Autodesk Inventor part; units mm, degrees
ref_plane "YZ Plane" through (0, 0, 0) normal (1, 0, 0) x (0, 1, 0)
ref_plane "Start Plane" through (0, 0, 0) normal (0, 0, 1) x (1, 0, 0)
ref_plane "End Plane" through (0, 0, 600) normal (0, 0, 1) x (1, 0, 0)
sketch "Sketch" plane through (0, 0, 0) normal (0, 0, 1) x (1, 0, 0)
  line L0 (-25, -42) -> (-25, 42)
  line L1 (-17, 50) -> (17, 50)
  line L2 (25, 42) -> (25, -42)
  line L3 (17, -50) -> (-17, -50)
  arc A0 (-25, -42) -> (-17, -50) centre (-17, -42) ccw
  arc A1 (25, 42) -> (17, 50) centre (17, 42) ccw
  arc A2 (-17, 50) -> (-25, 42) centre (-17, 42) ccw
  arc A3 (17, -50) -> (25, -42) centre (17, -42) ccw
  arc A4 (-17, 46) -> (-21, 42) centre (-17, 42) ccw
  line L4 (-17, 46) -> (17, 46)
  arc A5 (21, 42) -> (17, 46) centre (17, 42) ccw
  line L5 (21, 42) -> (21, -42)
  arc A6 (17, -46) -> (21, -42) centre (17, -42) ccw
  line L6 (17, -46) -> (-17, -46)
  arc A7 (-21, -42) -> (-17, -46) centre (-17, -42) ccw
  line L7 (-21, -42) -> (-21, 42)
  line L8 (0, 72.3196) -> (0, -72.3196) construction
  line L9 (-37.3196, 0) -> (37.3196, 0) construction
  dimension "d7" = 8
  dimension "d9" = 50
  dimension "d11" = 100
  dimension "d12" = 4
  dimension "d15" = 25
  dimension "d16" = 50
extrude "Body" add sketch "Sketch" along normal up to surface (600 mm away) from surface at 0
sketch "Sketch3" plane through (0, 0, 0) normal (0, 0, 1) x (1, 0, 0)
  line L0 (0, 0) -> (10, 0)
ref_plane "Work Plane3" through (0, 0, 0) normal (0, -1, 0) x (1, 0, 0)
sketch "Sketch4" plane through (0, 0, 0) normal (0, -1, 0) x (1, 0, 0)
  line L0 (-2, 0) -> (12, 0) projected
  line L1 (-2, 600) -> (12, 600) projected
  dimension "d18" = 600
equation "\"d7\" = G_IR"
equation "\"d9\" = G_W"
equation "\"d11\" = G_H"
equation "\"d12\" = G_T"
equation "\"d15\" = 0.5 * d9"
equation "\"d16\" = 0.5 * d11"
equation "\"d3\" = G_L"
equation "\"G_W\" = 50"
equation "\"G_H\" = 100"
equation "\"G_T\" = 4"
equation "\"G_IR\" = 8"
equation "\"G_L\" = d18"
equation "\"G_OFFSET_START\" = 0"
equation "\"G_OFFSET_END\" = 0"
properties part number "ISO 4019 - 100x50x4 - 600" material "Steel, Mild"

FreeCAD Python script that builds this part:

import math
import FreeCAD as App
import Part
import Sketcher

doc = App.newDocument("Part")
params = doc.addObject("Spreadsheet::Sheet", "Params")
for row, (alias, value) in enumerate([
    ("sketch1_radius", "8 mm"),
    ("sketch1_radius2", "4 mm"),
    ("pad1_length", "600 mm"),
], start=1):
    params.set(f"A{row}", alias)
    params.set(f"B{row}", "=" + value)
    params.setAlias(f"B{row}", alias)

body = doc.addObject("PartDesign::Body", "Body")

sketch1 = body.newObject("Sketcher::SketchObject", "Sketch")
sketch1.AttachmentSupport = (doc.getObject("XY_Plane"), [""])
sketch1.MapMode = "FlatFace"
sketch1.addGeometry([
    Part.LineSegment(App.Vector(-25, 42, 0), App.Vector(-25, -42, 0)),
    Part.ArcOfCircle(Part.Circle(App.Vector(-17, -42, 0), App.Vector(0, 0, 1), 8), math.radians(180), math.radians(270)),
    Part.LineSegment(App.Vector(-17, -50, 0), App.Vector(17, -50, 0)),
    Part.ArcOfCircle(Part.Circle(App.Vector(17, -42, 0), App.Vector(0, 0, 1), 8), math.radians(-90), math.radians(0)),
    Part.LineSegment(App.Vector(25, -42, 0), App.Vector(25, 42, 0)),
    Part.ArcOfCircle(Part.Circle(App.Vector(17, 42, 0), App.Vector(0, 0, 1), 8), math.radians(0), math.radians(90)),
    Part.LineSegment(App.Vector(17, 50, 0), App.Vector(-17, 50, 0)),
    Part.ArcOfCircle(Part.Circle(App.Vector(-17, 42, 0), App.Vector(0, 0, 1), 8), math.radians(90), math.radians(180)),
    Part.ArcOfCircle(Part.Circle(App.Vector(-17, 42, 0), App.Vector(0, 0, 1), 4), math.radians(90), math.radians(180)),
    Part.LineSegment(App.Vector(-17, 46, 0), App.Vector(17, 46, 0)),
    Part.ArcOfCircle(Part.Circle(App.Vector(17, 42, 0), App.Vector(0, 0, 1), 4), math.radians(0), math.radians(90)),
    Part.LineSegment(App.Vector(21, 42, 0), App.Vector(21, -42, 0)),
    Part.ArcOfCircle(Part.Circle(App.Vector(17, -42, 0), App.Vector(0, 0, 1), 4), math.radians(-90), math.radians(0)),
    Part.LineSegment(App.Vector(17, -46, 0), App.Vector(-17, -46, 0)),
    Part.ArcOfCircle(Part.Circle(App.Vector(-17, -42, 0), App.Vector(0, 0, 1), 4), math.radians(180), math.radians(270)),
    Part.LineSegment(App.Vector(-21, -42, 0), App.Vector(-21, 42, 0)),
], False)
sketch1.addConstraint([
    Sketcher.Constraint("Tangent", 0, 2, 1, 1),
    Sketcher.Constraint("Tangent", 1, 2, 2, 1),
    Sketcher.Constraint("Tangent", 2, 2, 3, 1),
    Sketcher.Constraint("Tangent", 3, 2, 4, 1),
    Sketcher.Constraint("Tangent", 4, 2, 5, 1),
    Sketcher.Constraint("Tangent", 5, 2, 6, 1),
    Sketcher.Constraint("Tangent", 6, 2, 7, 1),
    Sketcher.Constraint("Tangent", 7, 2, 0, 1),
    Sketcher.Constraint("Tangent", 8, 1, 9, 1),
    Sketcher.Constraint("Tangent", 9, 2, 10, 2),
    Sketcher.Constraint("Tangent", 10, 1, 11, 1),
    Sketcher.Constraint("Tangent", 11, 2, 12, 2),
    Sketcher.Constraint("Tangent", 12, 1, 13, 1),
    Sketcher.Constraint("Tangent", 13, 2, 14, 2),
    Sketcher.Constraint("Tangent", 14, 1, 15, 1),
    Sketcher.Constraint("Tangent", 15, 2, 8, 2),
    Sketcher.Constraint("Vertical", 0),
    Sketcher.Constraint("Horizontal", 2),
    Sketcher.Constraint("Vertical", 4),
    Sketcher.Constraint("Horizontal", 6),
    Sketcher.Constraint("Horizontal", 9),
    Sketcher.Constraint("Vertical", 11),
    Sketcher.Constraint("Horizontal", 13),
    Sketcher.Constraint("Vertical", 15),
    Sketcher.Constraint("Coincident", 8, 3, 7, 3),
    Sketcher.Constraint("Coincident", 10, 3, 5, 3),
    Sketcher.Constraint("Coincident", 12, 3, 3, 3),
    Sketcher.Constraint("Equal", 1, 3),
    Sketcher.Constraint("Equal", 3, 5),
    Sketcher.Constraint("Equal", 5, 7),
    Sketcher.Constraint("Equal", 12, 14),
    Sketcher.Constraint("Symmetric", 1, 3, 5, 3, -1, 1),
    Sketcher.Constraint("Radius", 1, 8.0),
    Sketcher.Constraint("Radius", 8, 4.0),
    Sketcher.Constraint("DistanceX", 0, 2, -1, 1, 25.0),
    Sketcher.Constraint("DistanceY", 1, 2, -1, 1, 50.0),
])
sketch1.setExpression("Constraints[32]", "Params.sketch1_radius")
sketch1.setExpression("Constraints[33]", "Params.sketch1_radius2")
pad1 = body.newObject("PartDesign::Pad", "Pad")
pad1.Profile = sketch1
pad1.setExpression("Length", "Params.pad1_length")

doc.recompute()
